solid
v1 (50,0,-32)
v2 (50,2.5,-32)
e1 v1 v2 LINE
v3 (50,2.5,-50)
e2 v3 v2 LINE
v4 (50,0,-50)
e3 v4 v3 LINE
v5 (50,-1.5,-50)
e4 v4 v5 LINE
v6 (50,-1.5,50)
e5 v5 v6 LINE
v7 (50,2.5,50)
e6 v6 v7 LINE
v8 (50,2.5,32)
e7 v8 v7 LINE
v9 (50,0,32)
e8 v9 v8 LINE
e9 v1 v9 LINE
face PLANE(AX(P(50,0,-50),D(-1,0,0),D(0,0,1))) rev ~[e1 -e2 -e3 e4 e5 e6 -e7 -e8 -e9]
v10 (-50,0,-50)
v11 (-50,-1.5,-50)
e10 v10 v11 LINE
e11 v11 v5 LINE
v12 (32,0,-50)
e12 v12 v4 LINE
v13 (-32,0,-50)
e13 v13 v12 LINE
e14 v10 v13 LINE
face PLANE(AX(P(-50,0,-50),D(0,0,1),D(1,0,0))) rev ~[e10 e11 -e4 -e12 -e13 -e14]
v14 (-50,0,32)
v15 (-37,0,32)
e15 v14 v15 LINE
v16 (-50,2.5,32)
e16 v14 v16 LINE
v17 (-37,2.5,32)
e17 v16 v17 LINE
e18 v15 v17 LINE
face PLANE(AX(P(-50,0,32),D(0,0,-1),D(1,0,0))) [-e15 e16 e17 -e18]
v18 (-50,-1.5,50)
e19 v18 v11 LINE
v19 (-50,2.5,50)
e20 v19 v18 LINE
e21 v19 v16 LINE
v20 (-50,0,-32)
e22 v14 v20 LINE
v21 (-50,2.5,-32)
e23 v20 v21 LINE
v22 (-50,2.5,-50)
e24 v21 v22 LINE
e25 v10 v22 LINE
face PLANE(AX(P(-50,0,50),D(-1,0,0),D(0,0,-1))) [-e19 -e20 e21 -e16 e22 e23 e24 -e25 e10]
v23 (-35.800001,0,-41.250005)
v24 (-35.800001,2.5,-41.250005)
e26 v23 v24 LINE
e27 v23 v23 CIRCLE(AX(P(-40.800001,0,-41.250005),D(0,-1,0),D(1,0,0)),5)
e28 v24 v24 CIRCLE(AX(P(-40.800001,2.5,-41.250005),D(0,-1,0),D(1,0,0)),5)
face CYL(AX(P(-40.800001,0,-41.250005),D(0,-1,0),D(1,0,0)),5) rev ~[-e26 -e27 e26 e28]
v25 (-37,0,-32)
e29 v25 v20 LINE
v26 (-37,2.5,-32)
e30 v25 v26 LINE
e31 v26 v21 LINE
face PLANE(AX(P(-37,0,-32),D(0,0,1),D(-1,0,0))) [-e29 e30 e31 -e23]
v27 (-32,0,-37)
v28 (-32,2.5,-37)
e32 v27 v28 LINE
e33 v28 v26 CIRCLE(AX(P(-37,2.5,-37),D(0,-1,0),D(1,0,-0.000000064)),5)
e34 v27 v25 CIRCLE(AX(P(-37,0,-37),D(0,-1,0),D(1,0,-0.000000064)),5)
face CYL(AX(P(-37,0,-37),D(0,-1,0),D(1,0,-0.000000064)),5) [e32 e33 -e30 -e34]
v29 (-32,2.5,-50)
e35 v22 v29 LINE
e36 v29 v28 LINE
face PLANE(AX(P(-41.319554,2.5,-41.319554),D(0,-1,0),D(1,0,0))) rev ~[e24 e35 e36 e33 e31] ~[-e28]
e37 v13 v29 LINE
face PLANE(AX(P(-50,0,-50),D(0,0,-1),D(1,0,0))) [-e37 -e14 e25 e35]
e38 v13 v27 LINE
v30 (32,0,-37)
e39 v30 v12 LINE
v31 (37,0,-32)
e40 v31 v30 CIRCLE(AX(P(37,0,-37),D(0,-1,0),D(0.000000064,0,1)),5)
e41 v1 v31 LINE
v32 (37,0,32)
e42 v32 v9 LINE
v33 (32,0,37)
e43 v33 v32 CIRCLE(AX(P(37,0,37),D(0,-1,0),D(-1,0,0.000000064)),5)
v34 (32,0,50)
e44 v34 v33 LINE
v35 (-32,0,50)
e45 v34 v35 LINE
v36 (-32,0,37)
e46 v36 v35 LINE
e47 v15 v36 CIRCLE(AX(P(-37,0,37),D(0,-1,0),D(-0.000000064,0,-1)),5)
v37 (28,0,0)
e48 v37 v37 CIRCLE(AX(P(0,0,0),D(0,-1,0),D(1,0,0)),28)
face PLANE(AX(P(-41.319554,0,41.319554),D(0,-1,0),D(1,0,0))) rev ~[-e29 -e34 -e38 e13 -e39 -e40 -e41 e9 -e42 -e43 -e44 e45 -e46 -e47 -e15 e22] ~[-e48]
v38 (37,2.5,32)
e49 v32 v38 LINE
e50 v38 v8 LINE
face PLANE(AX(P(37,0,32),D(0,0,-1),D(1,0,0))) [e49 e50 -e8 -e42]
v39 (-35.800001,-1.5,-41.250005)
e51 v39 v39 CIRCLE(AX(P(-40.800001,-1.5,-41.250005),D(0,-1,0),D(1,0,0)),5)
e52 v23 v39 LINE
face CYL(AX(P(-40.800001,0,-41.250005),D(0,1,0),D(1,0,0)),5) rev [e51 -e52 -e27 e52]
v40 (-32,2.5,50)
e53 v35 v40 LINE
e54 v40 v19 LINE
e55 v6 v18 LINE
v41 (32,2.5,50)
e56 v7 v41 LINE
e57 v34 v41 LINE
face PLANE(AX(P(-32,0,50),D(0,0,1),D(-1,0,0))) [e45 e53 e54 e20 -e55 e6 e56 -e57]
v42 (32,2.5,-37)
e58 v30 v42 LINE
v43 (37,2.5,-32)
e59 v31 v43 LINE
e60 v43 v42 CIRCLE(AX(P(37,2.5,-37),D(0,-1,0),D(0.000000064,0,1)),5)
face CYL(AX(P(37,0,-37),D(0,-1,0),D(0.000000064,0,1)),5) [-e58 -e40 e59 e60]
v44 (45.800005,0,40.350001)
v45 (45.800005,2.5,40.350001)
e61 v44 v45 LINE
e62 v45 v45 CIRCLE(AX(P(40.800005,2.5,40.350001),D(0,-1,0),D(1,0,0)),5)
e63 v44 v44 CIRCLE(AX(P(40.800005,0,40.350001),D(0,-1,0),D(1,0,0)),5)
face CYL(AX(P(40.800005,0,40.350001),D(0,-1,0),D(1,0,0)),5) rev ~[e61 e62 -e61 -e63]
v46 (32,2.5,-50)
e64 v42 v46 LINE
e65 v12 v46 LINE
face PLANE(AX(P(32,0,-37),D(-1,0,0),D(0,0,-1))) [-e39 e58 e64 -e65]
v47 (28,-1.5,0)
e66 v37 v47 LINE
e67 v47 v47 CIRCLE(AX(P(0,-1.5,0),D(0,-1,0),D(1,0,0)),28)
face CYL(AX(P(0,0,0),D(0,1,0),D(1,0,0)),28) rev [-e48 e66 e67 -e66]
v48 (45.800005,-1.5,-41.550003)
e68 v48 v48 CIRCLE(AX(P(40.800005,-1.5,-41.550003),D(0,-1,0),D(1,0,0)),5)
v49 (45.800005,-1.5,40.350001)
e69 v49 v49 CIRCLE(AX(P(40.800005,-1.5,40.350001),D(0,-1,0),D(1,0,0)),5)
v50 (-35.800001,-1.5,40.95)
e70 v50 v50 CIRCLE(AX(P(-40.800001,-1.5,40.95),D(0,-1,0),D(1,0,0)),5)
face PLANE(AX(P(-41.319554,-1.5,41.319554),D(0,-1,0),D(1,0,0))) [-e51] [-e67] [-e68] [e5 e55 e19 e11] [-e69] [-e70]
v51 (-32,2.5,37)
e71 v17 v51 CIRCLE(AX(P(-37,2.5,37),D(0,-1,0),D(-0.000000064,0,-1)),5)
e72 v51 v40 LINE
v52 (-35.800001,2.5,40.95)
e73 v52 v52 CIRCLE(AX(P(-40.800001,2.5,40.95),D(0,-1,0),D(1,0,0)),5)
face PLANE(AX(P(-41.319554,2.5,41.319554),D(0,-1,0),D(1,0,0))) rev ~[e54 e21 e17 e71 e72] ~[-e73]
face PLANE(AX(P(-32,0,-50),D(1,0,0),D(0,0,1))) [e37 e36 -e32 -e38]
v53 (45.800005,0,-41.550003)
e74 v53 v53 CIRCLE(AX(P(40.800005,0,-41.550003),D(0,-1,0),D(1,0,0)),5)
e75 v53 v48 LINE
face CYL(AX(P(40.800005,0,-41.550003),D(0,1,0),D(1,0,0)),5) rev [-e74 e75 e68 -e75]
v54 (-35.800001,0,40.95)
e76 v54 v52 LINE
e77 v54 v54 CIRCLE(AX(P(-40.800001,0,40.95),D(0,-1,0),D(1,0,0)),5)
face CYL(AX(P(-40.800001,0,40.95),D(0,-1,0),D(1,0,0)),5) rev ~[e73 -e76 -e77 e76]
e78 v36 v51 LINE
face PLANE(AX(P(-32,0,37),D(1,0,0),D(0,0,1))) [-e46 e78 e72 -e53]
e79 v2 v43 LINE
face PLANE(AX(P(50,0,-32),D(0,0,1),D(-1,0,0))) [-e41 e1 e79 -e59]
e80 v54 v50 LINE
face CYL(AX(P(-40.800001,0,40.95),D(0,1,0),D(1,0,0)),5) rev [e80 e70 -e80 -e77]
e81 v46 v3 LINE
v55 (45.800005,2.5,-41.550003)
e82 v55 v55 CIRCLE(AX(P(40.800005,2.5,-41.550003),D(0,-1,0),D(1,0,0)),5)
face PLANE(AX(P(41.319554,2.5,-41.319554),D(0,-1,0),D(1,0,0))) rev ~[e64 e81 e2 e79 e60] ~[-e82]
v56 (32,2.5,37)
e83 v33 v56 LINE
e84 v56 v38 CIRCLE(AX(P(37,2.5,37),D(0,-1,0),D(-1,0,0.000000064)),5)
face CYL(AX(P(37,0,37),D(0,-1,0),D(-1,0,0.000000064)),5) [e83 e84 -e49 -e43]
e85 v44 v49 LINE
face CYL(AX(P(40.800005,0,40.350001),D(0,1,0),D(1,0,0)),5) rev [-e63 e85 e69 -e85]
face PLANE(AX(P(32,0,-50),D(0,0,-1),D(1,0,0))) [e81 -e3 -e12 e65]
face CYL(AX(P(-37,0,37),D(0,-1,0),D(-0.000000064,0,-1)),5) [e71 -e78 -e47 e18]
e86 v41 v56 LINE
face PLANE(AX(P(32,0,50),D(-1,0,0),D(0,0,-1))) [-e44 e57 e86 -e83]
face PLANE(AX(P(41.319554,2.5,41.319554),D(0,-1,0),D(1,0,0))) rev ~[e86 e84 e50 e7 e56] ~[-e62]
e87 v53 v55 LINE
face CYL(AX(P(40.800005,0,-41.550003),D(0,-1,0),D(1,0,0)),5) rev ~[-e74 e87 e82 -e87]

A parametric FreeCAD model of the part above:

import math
import FreeCAD as App
import Part
import Sketcher
from FreeCAD import Vector

doc = App.newDocument("Part")
body = doc.addObject("PartDesign::Body", "Body")

# Sketch on XZ plane
sketch1 = body.newObject("Sketcher::SketchObject", "Sketch")
sketch1.AttachmentSupport = (doc.getObject("XZ_Plane"), [""])
sketch1.MapMode = "FlatFace"
sketch1.addGeometry([
    Part.LineSegment(Vector(-50, 50, 0), Vector(-50, -50, 0)),  # 0
    Part.LineSegment(Vector(-50, -50, 0), Vector(50, -50, 0)),  # 1
    Part.LineSegment(Vector(50, -50, 0), Vector(50, 50, 0)),  # 2
    Part.LineSegment(Vector(50, 50, 0), Vector(-50, 50, 0)),  # 3
    Part.Circle(Vector(-41, -41, 0), Vector(0, 0, 1), 5),  # 4
    Part.Circle(Vector(41, -42, 0), Vector(0, 0, 1), 5),  # 5
    Part.Circle(Vector(0, 0, 0), Vector(0, 0, 1), 28),  # 6
    Part.Circle(Vector(-41, 41, 0), Vector(0, 0, 1), 5),  # 7
    Part.Circle(Vector(41, 40, 0), Vector(0, 0, 1), 5),  # 8
], False)
sketch1.addConstraint([
    Sketcher.Constraint("Coincident", 0, 2, 1, 1),
    Sketcher.Constraint("Coincident", 1, 2, 2, 1),
    Sketcher.Constraint("Coincident", 2, 2, 3, 1),
    Sketcher.Constraint("Coincident", 3, 2, 0, 1),
    Sketcher.Constraint("Vertical", 0),
    Sketcher.Constraint("Horizontal", 1),
    Sketcher.Constraint("Vertical", 2),
    Sketcher.Constraint("Horizontal", 3),
    Sketcher.Constraint("Coincident", 6, 3, -1, 1),
    Sketcher.Constraint("Equal", 4, 5),
    Sketcher.Constraint("Equal", 5, 7),
    Sketcher.Constraint("Equal", 7, 8),
    Sketcher.Constraint("Symmetric", 0, 2, 2, 2, -1, 1),
    Sketcher.Constraint("Vertical", 4, 3, 7, 3),
    Sketcher.Constraint("Vertical", 5, 3, 8, 3),
    Sketcher.Constraint("Equal", 3, 0),
    Sketcher.Constraint("Diameter", 4, 10.0),
    Sketcher.Constraint("Diameter", 6, 56.0),
    Sketcher.Constraint("DistanceX", 1, 1, 1, 2, 100.0),
    Sketcher.Constraint("DistanceX", 4, 3, -1, 1, 40.800001),
    Sketcher.Constraint("DistanceY", 8, 3, 7, 3, 0.599999),
    Sketcher.Constraint("DistanceY", -1, 1, 7, 3, 40.95),
    Sketcher.Constraint("DistanceY", 4, 3, -1, 1, 41.250005),
    Sketcher.Constraint("DistanceX", -1, 1, 5, 3, 40.800005),
    Sketcher.Constraint("DistanceY", 5, 3, -1, 1, 41.550003),
])
pad1 = body.newObject("PartDesign::Pad", "Pad")
pad1.Profile = sketch1
pad1.Length = 1.5

# Sketch on XZ plane
sketch2 = body.newObject("Sketcher::SketchObject", "Sketch001")
sketch2.AttachmentSupport = (doc.getObject("XZ_Plane"), [""])
sketch2.MapMode = "FlatFace"
sketch2.addGeometry([
    Part.LineSegment(Vector(-32, 50, 0), Vector(-50, 50, 0)),  # 0
    Part.LineSegment(Vector(-50, 50, 0), Vector(-50, 32, 0)),  # 1
    Part.LineSegment(Vector(-50, 32, 0), Vector(-37, 32, 0)),  # 2
    Part.ArcOfCircle(Part.Circle(Vector(-37, 37, 0), Vector(0, 0, 1), 5), math.radians(-90), math.radians(0)),  # 3
    Part.LineSegment(Vector(-32, 37, 0), Vector(-32, 50, 0)),  # 4
    Part.Circle(Vector(-40.8, 41, 0), Vector(0, 0, 1), 5),  # 5
    Part.LineSegment(Vector(50, 50, 0), Vector(32, 50, 0)),  # 6
    Part.LineSegment(Vector(32, 50, 0), Vector(32, 37, 0)),  # 7
    Part.ArcOfCircle(Part.Circle(Vector(37, 37, 0), Vector(0, 0, 1), 5), math.radians(180), math.radians(270)),  # 8
    Part.LineSegment(Vector(37, 32, 0), Vector(50, 32, 0)),  # 9
    Part.LineSegment(Vector(50, 32, 0), Vector(50, 50, 0)),  # 10
    Part.Circle(Vector(40.8, 40.4, 0), Vector(0, 0, 1), 5),  # 11
    Part.LineSegment(Vector(-37, -32, 0), Vector(-50, -32, 0)),  # 12
    Part.LineSegment(Vector(-50, -32, 0), Vector(-50, -50, 0)),  # 13
    Part.LineSegment(Vector(-50, -50, 0), Vector(-32, -50, 0)),  # 14
    Part.LineSegment(Vector(-32, -50, 0), Vector(-32, -37, 0)),  # 15
    Part.ArcOfCircle(Part.Circle(Vector(-37, -37, 0), Vector(0, 0, 1), 5), math.radians(0), math.radians(90)),  # 16
    Part.Circle(Vector(-40.8, -41.3, 0), Vector(0, 0, 1), 5),  # 17
    Part.LineSegment(Vector(50, -50, 0), Vector(50, -32, 0)),  # 18
    Part.LineSegment(Vector(50, -32, 0), Vector(37, -32, 0)),  # 19
    Part.ArcOfCircle(Part.Circle(Vector(37, -37, 0), Vector(0, 0, 1), 5), math.radians(90), math.radians(180)),  # 20
    Part.LineSegment(Vector(32, -37, 0), Vector(32, -50, 0)),  # 21
    Part.LineSegment(Vector(32, -50, 0), Vector(50, -50, 0)),  # 22
    Part.Circle(Vector(40.8, -41.6, 0), Vector(0, 0, 1), 5),  # 23
], False)
sketch2.addConstraint([
    Sketcher.Constraint("Coincident", 0, 2, 1, 1),
    Sketcher.Constraint("Coincident", 1, 2, 2, 1),
    Sketcher.Constraint("Tangent", 2, 2, 3, 1),
    Sketcher.Constraint("Tangent", 3, 2, 4, 1),
    Sketcher.Constraint("Coincident", 4, 2, 0, 1),
    Sketcher.Constraint("Coincident", 6, 2, 7, 1),
    Sketcher.Constraint("Tangent", 7, 2, 8, 1),
    Sketcher.Constraint("Tangent", 8, 2, 9, 1),
    Sketcher.Constraint("Coincident", 9, 2, 10, 1),
    Sketcher.Constraint("Coincident", 10, 2, 6, 1),
    Sketcher.Constraint("Coincident", 12, 2, 13, 1),
    Sketcher.Constraint("Coincident", 13, 2, 14, 1),
    Sketcher.Constraint("Coincident", 14, 2, 15, 1),
    Sketcher.Constraint("Tangent", 15, 2, 16, 1),
    Sketcher.Constraint("Tangent", 16, 2, 12, 1),
    Sketcher.Constraint("Coincident", 18, 2, 19, 1),
    Sketcher.Constraint("Tangent", 19, 2, 20, 1),
    Sketcher.Constraint("Tangent", 20, 2, 21, 1),
    Sketcher.Constraint("Coincident", 21, 2, 22, 1),
    Sketcher.Constraint("Coincident", 22, 2, 18, 1),
    Sketcher.Constraint("Horizontal", 0),
    Sketcher.Constraint("Vertical", 1),
    Sketcher.Constraint("Horizontal", 2),
    Sketcher.Constraint("Vertical", 4),
    Sketcher.Constraint("Horizontal", 6),
    Sketcher.Constraint("Vertical", 7),
    Sketcher.Constraint("Horizontal", 9),
    Sketcher.Constraint("Vertical", 10),
    Sketcher.Constraint("Horizontal", 12),
    Sketcher.Constraint("Vertical", 13),
    Sketcher.Constraint("Horizontal", 14),
    Sketcher.Constraint("Vertical", 15),
    Sketcher.Constraint("Vertical", 18),
    Sketcher.Constraint("Horizontal", 19),
    Sketcher.Constraint("Vertical", 21),
    Sketcher.Constraint("Horizontal", 22),
    Sketcher.Constraint("Equal", 3, 5),
    Sketcher.Constraint("Equal", 5, 8),
    Sketcher.Constraint("Equal", 8, 11),
    Sketcher.Constraint("Equal", 11, 16),
    Sketcher.Constraint("Equal", 16, 17),
    Sketcher.Constraint("Equal", 17, 20),
    Sketcher.Constraint("Equal", 20, 23),
    Sketcher.Constraint("Symmetric", 8, 3, 16, 3, -1, 1),
    Sketcher.Constraint("Symmetric", 3, 3, 20, 3, -1, 1),
    Sketcher.Constraint("Symmetric", 10, 2, 13, 2, -1, 1),
    Sketcher.Constraint("Symmetric", 0, 2, 22, 2, -1, 1),
    Sketcher.Constraint("Symmetric", 3, 3, 8, 3, -2),
    Sketcher.Constraint("Symmetric", 0, 2, 10, 2, -2),
    Sketcher.Constraint("Vertical", 5, 3, 17, 3),
    Sketcher.Constraint("Vertical", 11, 3, 23, 3),
    Sketcher.Constraint("Equal", 22, 1),
    Sketcher.Constraint("Diameter", 5, 10.0),
    Sketcher.Constraint("DistanceX", 0, 2, 0, 1, 18.0),
    Sketcher.Constraint("DistanceX", 3, 3, -1, 1, 37.0),
    Sketcher.Constraint("DistanceY", -1, 1, 3, 3, 37.0),
    Sketcher.Constraint("DistanceX", 5, 3, -1, 1, 40.800001),
    Sketcher.Constraint("DistanceY", 11, 3, 5, 3, 0.599999),
    Sketcher.Constraint("DistanceY", -1, 1, 5, 3, 40.95),
    Sketcher.Constraint("DistanceX", -1, 1, 11, 3, 40.800005),
    Sketcher.Constraint("DistanceY", 17, 3, -1, 1, 41.250005),
    Sketcher.Constraint("DistanceY", 23, 3, -1, 1, 41.550003),
])
pad2 = body.newObject("PartDesign::Pad", "Pad001")
pad2.Profile = sketch2
pad2.Length = 2.5
pad2.Reversed = True

doc.recompute()
